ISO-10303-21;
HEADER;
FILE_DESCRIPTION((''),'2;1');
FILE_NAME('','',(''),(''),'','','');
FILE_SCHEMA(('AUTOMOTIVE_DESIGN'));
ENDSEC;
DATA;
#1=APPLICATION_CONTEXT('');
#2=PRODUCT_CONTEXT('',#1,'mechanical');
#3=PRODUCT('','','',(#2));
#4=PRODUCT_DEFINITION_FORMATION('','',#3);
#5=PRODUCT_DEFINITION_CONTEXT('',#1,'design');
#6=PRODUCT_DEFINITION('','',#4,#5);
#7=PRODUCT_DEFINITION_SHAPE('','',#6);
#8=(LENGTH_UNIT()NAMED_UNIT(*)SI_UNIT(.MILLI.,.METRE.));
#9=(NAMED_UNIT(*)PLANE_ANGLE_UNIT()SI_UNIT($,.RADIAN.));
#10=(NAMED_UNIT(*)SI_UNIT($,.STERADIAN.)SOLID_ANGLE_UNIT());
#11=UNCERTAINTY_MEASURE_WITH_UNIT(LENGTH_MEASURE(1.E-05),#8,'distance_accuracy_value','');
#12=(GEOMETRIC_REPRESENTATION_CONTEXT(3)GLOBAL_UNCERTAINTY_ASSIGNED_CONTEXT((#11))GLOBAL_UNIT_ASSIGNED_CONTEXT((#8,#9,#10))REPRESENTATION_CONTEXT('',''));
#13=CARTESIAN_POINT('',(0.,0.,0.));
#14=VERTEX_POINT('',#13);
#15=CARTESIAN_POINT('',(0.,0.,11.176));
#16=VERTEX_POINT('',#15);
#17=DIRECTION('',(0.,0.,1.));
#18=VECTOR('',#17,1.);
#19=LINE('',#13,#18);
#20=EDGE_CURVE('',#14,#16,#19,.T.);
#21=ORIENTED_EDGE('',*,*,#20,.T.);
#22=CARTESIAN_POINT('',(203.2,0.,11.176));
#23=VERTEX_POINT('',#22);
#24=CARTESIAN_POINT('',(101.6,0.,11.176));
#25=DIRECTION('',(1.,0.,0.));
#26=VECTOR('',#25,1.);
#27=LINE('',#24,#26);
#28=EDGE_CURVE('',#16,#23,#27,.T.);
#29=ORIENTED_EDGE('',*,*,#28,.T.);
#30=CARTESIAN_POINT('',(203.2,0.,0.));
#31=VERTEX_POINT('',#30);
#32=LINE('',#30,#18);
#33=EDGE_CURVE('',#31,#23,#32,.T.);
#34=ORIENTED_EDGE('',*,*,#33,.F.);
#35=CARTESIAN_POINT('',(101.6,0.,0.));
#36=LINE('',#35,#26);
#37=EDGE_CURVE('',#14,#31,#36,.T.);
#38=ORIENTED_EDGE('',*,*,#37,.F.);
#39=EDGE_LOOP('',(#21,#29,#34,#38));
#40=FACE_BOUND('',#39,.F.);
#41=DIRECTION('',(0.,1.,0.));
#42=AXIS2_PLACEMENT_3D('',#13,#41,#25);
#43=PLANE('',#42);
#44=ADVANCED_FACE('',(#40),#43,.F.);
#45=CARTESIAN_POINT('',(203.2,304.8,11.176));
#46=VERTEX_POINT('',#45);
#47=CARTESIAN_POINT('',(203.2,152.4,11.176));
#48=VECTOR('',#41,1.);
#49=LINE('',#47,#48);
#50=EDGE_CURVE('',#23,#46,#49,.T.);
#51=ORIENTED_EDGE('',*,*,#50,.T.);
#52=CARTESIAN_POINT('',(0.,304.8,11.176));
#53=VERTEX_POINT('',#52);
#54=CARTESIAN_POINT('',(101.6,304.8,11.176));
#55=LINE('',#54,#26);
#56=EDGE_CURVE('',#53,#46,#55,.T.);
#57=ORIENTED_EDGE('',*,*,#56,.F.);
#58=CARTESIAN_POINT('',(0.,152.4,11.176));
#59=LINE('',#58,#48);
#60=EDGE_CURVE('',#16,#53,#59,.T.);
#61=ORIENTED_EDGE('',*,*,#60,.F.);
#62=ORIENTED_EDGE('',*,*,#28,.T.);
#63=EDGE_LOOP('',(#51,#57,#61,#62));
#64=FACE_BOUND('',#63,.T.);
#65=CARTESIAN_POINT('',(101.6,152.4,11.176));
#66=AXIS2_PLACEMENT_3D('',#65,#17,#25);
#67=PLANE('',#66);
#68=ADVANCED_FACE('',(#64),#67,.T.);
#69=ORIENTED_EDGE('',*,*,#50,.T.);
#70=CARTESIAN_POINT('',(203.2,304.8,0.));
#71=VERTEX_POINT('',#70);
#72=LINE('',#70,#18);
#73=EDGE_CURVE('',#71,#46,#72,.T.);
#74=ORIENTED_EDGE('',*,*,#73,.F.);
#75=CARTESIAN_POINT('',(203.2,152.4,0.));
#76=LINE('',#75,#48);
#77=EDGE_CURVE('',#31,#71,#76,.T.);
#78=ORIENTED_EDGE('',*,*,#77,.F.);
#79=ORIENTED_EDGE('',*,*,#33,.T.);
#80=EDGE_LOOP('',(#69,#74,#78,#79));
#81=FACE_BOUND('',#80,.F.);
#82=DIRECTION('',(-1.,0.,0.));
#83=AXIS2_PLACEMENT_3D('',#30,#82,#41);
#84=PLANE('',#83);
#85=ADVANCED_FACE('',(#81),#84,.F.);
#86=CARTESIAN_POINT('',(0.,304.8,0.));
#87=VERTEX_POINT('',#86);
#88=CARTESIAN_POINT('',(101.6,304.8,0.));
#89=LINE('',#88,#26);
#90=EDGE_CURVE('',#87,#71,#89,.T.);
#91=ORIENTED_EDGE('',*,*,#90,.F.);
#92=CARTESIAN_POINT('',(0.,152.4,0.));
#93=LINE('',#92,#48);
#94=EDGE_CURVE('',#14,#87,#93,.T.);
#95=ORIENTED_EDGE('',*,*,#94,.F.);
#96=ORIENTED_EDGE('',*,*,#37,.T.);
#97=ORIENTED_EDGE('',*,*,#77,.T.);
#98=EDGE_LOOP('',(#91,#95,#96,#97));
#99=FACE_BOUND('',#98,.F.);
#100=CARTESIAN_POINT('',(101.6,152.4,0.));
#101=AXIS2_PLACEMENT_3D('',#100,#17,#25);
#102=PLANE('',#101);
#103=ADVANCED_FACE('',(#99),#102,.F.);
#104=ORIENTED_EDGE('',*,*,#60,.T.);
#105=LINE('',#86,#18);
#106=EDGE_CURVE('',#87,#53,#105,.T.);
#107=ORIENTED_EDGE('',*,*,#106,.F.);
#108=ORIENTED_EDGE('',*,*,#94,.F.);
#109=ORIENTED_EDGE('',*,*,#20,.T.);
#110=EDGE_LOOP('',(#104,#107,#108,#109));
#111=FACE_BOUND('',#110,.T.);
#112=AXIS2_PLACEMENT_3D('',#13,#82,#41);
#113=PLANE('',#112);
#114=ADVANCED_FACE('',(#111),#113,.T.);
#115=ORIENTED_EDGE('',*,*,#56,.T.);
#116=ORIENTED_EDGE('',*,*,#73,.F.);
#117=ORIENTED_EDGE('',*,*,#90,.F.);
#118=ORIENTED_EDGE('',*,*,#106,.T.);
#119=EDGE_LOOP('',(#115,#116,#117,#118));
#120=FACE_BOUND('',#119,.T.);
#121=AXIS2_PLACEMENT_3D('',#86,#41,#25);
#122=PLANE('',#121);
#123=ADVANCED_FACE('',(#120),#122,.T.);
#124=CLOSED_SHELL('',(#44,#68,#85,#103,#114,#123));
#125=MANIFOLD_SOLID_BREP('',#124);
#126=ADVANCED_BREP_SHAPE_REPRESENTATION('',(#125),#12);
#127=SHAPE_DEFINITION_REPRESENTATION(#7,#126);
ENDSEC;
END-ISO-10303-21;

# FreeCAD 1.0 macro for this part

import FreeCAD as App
import Part
import Sketcher
Q = App.Units.Quantity

doc = App.newDocument("Part")
body = doc.addObject("PartDesign::Body", "Body")

sketch1 = body.newObject("Sketcher::SketchObject", "Sketch")
sketch1.AttachmentSupport = (doc.getObject("XY_Plane"), [""])
sketch1.MapMode = "FlatFace"
sketch1.addGeometry([
    Part.LineSegment(App.Vector(0, 304.8, 0), App.Vector(0, 0, 0)),
    Part.LineSegment(App.Vector(0, 0, 0), App.Vector(203.2, 0, 0)),
    Part.LineSegment(App.Vector(203.2, 0, 0), App.Vector(203.2, 304.8, 0)),
    Part.LineSegment(App.Vector(203.2, 304.8, 0), App.Vector(0, 304.8, 0)),
], False)
sketch1.addConstraint([
    Sketcher.Constraint("Coincident", 0, 2, 1, 1),
    Sketcher.Constraint("Coincident", 1, 2, 2, 1),
    Sketcher.Constraint("Coincident", 2, 2, 3, 1),
    Sketcher.Constraint("Coincident", 3, 2, 0, 1),
    Sketcher.Constraint("Vertical", 0),
    Sketcher.Constraint("Horizontal", 1),
    Sketcher.Constraint("Vertical", 2),
    Sketcher.Constraint("Horizontal", 3),
    Sketcher.Constraint("Coincident", 0, 2, -1, 1),
    Sketcher.Constraint("DistanceX", 1, 1, 1, 2, Q("8 in")),
    Sketcher.Constraint("DistanceY", 0, 2, 0, 1, Q("12 in")),
])
pad1 = body.newObject("PartDesign::Pad", "Pad")
pad1.Profile = sketch1
pad1.Length = Q("0.44 in")

doc.recompute()
